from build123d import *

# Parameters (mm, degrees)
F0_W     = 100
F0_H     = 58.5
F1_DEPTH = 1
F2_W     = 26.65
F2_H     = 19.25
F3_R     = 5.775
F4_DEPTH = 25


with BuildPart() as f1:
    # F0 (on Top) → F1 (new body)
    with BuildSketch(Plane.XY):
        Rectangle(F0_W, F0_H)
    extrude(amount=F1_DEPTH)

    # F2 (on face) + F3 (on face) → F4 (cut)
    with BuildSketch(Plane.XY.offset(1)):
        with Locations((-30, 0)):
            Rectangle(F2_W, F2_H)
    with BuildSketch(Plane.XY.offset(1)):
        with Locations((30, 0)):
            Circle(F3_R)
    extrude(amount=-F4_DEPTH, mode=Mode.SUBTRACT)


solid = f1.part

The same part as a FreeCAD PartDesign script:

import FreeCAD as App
import Part
import Sketcher
from FreeCAD import Vector
Q = App.Units.Quantity

doc = App.newDocument("Part")
body = doc.addObject("PartDesign::Body", "Body")

sketch1 = body.newObject("Sketcher::SketchObject", "Sketch")
sketch1.AttachmentSupport = (doc.getObject("XY_Plane"), [""])
sketch1.MapMode = "FlatFace"
sketch1.addGeometry(Part.LineSegment(Vector(-50, 29.25, 0), Vector(-50, -29.25, 0)), False)
sketch1.addGeometry(Part.LineSegment(Vector(-50, -29.25, 0), Vector(50, -29.25, 0)), False)
sketch1.addGeometry(Part.LineSegment(Vector(50, -29.25, 0), Vector(50, 29.25, 0)), False)
sketch1.addGeometry(Part.LineSegment(Vector(50, 29.25, 0), Vector(-50, 29.25, 0)), False)
sketch1.addConstraint(Sketcher.Constraint("Coincident", 0, 2, 1, 1))
sketch1.addConstraint(Sketcher.Constraint("Coincident", 1, 2, 2, 1))
sketch1.addConstraint(Sketcher.Constraint("Coincident", 2, 2, 3, 1))
sketch1.addConstraint(Sketcher.Constraint("Coincident", 3, 2, 0, 1))
sketch1.addConstraint(Sketcher.Constraint("Vertical", 0))
sketch1.addConstraint(Sketcher.Constraint("Horizontal", 1))
sketch1.addConstraint(Sketcher.Constraint("Vertical", 2))
sketch1.addConstraint(Sketcher.Constraint("Horizontal", 3))
sketch1.addConstraint(Sketcher.Constraint("Symmetric", 0, 2, 2, 2, -1, 1))
sketch1.addConstraint(Sketcher.Constraint("DistanceX", 1, 1, 1, 2, Q("100 mm")))
sketch1.addConstraint(Sketcher.Constraint("DistanceY", 0, 2, 0, 1, Q("58.5 mm")))
pad1 = body.newObject("PartDesign::Pad", "Pad")
pad1.Profile = sketch1
pad1.Length = 1

sketch2 = body.newObject("Sketcher::SketchObject", "Sketch001")
sketch2.AttachmentSupport = (doc.getObject("XY_Plane"), [""])
sketch2.MapMode = "FlatFace"
sketch2.AttachmentOffset = App.Placement(Vector(0, 0, 1), App.Rotation())
sketch2.addGeometry(Part.LineSegment(Vector(-43.325, 9.625, 0), Vector(-43.325, -9.625, 0)), False)
sketch2.addGeometry(Part.LineSegment(Vector(-43.325, -9.625, 0), Vector(-16.675, -9.625, 0)), False)
sketch2.addGeometry(Part.LineSegment(Vector(-16.675, -9.625, 0), Vector(-16.675, 9.625, 0)), False)
sketch2.addGeometry(Part.LineSegment(Vector(-16.675, 9.625, 0), Vector(-43.325, 9.625, 0)), False)
sketch2.addGeometry(Part.Circle(Vector(30, 0, 0), Vector(0, 0, 1), 5.775), False)
sketch2.addConstraint(Sketcher.Constraint("Coincident", 0, 2, 1, 1))
sketch2.addConstraint(Sketcher.Constraint("Coincident", 1, 2, 2, 1))
sketch2.addConstraint(Sketcher.Constraint("Coincident", 2, 2, 3, 1))
sketch2.addConstraint(Sketcher.Constraint("Coincident", 3, 2, 0, 1))
sketch2.addConstraint(Sketcher.Constraint("Vertical", 0))
sketch2.addConstraint(Sketcher.Constraint("Horizontal", 1))
sketch2.addConstraint(Sketcher.Constraint("Vertical", 2))
sketch2.addConstraint(Sketcher.Constraint("Horizontal", 3))
sketch2.addConstraint(Sketcher.Constraint("PointOnObject", 4, 3, -1))
sketch2.addConstraint(Sketcher.Constraint("Diameter", 4, Q("11.55 mm")))
sketch2.addConstraint(Sketcher.Constraint("DistanceX", -1, 1, 4, 3, Q("30 mm")))
sketch2.addConstraint(Sketcher.Constraint("DistanceX", 1, 1, 1, 2, Q("26.65 mm")))
sketch2.addConstraint(Sketcher.Constraint("DistanceY", 0, 2, 0, 1, Q("19.25 mm")))
sketch2.addConstraint(Sketcher.Constraint("DistanceX", 0, 2, -1, 1, Q("43.325 mm")))
sketch2.addConstraint(Sketcher.Constraint("DistanceY", 0, 2, -1, 1, Q("9.625 mm")))
pocket1 = body.newObject("PartDesign::Pocket", "Pocket")
pocket1.Profile = sketch2
pocket1.Length = 25

doc.recompute()
